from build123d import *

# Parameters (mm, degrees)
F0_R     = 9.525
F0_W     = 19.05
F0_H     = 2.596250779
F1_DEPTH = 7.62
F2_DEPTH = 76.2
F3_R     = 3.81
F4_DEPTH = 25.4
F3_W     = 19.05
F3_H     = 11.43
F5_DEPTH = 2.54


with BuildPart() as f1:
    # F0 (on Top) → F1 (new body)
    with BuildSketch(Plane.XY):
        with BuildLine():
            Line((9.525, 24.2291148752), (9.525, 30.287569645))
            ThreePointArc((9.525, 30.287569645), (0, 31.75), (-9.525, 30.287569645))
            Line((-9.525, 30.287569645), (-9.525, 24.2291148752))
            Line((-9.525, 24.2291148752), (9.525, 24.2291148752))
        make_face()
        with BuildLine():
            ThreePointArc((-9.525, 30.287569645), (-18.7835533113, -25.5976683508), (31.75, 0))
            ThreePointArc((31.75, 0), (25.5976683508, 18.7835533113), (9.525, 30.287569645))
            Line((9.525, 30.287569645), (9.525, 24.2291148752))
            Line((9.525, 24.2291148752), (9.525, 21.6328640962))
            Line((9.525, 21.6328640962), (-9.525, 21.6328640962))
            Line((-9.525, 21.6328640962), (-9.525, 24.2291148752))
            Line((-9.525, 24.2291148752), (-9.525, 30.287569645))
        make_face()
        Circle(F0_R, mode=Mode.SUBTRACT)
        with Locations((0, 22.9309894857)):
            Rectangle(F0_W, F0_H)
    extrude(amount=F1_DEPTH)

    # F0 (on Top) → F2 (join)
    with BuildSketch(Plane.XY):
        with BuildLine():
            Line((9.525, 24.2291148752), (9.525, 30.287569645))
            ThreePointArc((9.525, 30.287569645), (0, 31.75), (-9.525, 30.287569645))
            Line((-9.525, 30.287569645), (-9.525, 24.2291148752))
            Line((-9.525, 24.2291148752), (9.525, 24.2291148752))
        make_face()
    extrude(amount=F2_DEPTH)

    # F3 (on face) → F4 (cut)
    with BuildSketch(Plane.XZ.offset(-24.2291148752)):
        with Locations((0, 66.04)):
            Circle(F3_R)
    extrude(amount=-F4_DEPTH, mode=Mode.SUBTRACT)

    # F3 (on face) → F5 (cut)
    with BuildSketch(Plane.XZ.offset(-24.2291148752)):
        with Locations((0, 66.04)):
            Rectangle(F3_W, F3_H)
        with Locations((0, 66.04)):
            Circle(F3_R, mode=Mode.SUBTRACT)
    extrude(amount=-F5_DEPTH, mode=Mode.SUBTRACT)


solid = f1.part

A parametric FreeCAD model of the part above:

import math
import FreeCAD as App
import Part
import Sketcher

V = App.Vector
Q = App.Units.Quantity

doc = App.newDocument("Part")
body = doc.addObject("PartDesign::Body", "Body")

sketch1 = body.newObject("Sketcher::SketchObject", "Sketch")
sketch1.AttachmentSupport = (doc.getObject("XY_Plane"), [""])
sketch1.MapMode = "FlatFace"
sketch1.addGeometry([
    Part.ArcOfCircle(Part.Circle(V(0, 0, 0), V(0, 0, 1), 32), math.radians(73), math.radians(107)),
    Part.ArcOfCircle(Part.Circle(V(0, 0, 0), V(0, 0, 1), 32), math.radians(107), math.radians(360)),
    Part.ArcOfCircle(Part.Circle(V(0, 0, 0), V(0, 0, 1), 32), math.radians(0), math.radians(73)),
    Part.Circle(V(0, 0, 0), V(0, 0, 1), 10),
], False)
sketch1.addConstraint([
    Sketcher.Constraint("Tangent", 0, 2, 1, 1),
    Sketcher.Constraint("Tangent", 1, 2, 2, 1),
    Sketcher.Constraint("Tangent", 2, 2, 0, 1),
    Sketcher.Constraint("Coincident", 0, 3, -1, 1),
    Sketcher.Constraint("Coincident", 3, 3, -1, 1),
    Sketcher.Constraint("PointOnObject", 1, 2, -1),
    Sketcher.Constraint("Horizontal", 0, 2, 2, 2),
    Sketcher.Constraint("Diameter", 3, Q("0.75 in")),
    Sketcher.Constraint("Radius", 0, Q("1.25 in")),
    Sketcher.Constraint("DistanceX", 0, 2, 2, 2, Q("0.75 in")),
])
pad1 = body.newObject("PartDesign::Pad", "Pad")
pad1.Profile = sketch1
pad1.Length = Q("0.3 in")

sketch2 = body.newObject("Sketcher::SketchObject", "Sketch001")
sketch2.AttachmentSupport = (doc.getObject("XY_Plane"), [""])
sketch2.MapMode = "FlatFace"
sketch2.addGeometry([
    Part.LineSegment(V(10, 24, 0), V(10, 30, 0)),
    Part.ArcOfCircle(Part.Circle(V(0, 0, 0), V(0, 0, 1), 32), math.radians(73), math.radians(107)),
    Part.LineSegment(V(-10, 30, 0), V(-10, 24, 0)),
    Part.LineSegment(V(-10, 24, 0), V(10, 24, 0)),
], False)
sketch2.addConstraint([
    Sketcher.Constraint("Coincident", 0, 2, 1, 1),
    Sketcher.Constraint("Coincident", 1, 2, 2, 1),
    Sketcher.Constraint("Coincident", 2, 2, 3, 1),
    Sketcher.Constraint("Coincident", 3, 2, 0, 1),
    Sketcher.Constraint("Vertical", 0),
    Sketcher.Constraint("Vertical", 2),
    Sketcher.Constraint("Horizontal", 3),
    Sketcher.Constraint("Coincident", 1, 3, -1, 1),
    Sketcher.Constraint("Horizontal", 0, 2, 1, 2),
    Sketcher.Constraint("Radius", 1, Q("1.25 in")),
    Sketcher.Constraint("DistanceX", 3, 1, 3, 2, Q("0.75 in")),
    Sketcher.Constraint("DistanceY", 0, 1, 0, 2, Q("6.058455 mm")),
])
pad2 = body.newObject("PartDesign::Pad", "Pad001")
pad2.Profile = sketch2
pad2.Length = Q("3 in")

sketch3 = body.newObject("Sketcher::SketchObject", "Sketch002")
sketch3.AttachmentSupport = (doc.getObject("XZ_Plane"), [""])
sketch3.MapMode = "FlatFace"
sketch3.AttachmentOffset = App.Placement(V(0, 0, -24.229115), App.Rotation())
sketch3.addGeometry(Part.Circle(V(0, 66, 0), V(0, 0, 1), 3.8), False)
sketch3.addConstraint([
    Sketcher.Constraint("PointOnObject", 0, 3, -2),
    Sketcher.Constraint("Diameter", 0, Q("0.3 in")),
    Sketcher.Constraint("DistanceY", -1, 1, 0, 3, Q("2.6 in")),
])
pocket1 = body.newObject("PartDesign::Pocket", "Pocket")
pocket1.Profile = sketch3
pocket1.Length = Q("1 in")

sketch4 = body.newObject("Sketcher::SketchObject", "Sketch003")
sketch4.AttachmentSupport = (doc.getObject("XZ_Plane"), [""])
sketch4.MapMode = "FlatFace"
sketch4.AttachmentOffset = App.Placement(V(0, 0, -24.229115), App.Rotation())
sketch4.addGeometry([
    Part.LineSegment(V(-9.5, 71.8, 0), V(-9.5, 60.3, 0)),
    Part.LineSegment(V(-9.5, 60.3, 0), V(9.5, 60.3, 0)),
    Part.LineSegment(V(9.5, 60.3, 0), V(9.5, 71.8, 0)),
    Part.LineSegment(V(9.5, 71.8, 0), V(-9.5, 71.8, 0)),
    Part.Circle(V(0, 66, 0), V(0, 0, 1), 3.8),
], False)
sketch4.addConstraint([
    Sketcher.Constraint("Coincident", 0, 2, 1, 1),
    Sketcher.Constraint("Coincident", 1, 2, 2, 1),
    Sketcher.Constraint("Coincident", 2, 2, 3, 1),
    Sketcher.Constraint("Coincident", 3, 2, 0, 1),
    Sketcher.Constraint("Vertical", 0),
    Sketcher.Constraint("Horizontal", 1),
    Sketcher.Constraint("Vertical", 2),
    Sketcher.Constraint("Horizontal", 3),
    Sketcher.Constraint("PointOnObject", 4, 3, -2),
    Sketcher.Constraint("Diameter", 4, Q("0.3 in")),
    Sketcher.Constraint("DistanceX", 1, 1, 1, 2, Q("0.75 in")),
    Sketcher.Constraint("DistanceY", 0, 2, 0, 1, Q("0.45 in")),
    Sketcher.Constraint("DistanceY", -1, 1, 4, 3, Q("2.6 in")),
    Sketcher.Constraint("DistanceX", 0, 2, -1, 1, Q("0.375 in")),
    Sketcher.Constraint("DistanceY", -1, 1, 0, 2, Q("2.375 in")),
])
pocket2 = body.newObject("PartDesign::Pocket", "Pocket001")
pocket2.Profile = sketch4
pocket2.Length = Q("0.1 in")

doc.recompute()
